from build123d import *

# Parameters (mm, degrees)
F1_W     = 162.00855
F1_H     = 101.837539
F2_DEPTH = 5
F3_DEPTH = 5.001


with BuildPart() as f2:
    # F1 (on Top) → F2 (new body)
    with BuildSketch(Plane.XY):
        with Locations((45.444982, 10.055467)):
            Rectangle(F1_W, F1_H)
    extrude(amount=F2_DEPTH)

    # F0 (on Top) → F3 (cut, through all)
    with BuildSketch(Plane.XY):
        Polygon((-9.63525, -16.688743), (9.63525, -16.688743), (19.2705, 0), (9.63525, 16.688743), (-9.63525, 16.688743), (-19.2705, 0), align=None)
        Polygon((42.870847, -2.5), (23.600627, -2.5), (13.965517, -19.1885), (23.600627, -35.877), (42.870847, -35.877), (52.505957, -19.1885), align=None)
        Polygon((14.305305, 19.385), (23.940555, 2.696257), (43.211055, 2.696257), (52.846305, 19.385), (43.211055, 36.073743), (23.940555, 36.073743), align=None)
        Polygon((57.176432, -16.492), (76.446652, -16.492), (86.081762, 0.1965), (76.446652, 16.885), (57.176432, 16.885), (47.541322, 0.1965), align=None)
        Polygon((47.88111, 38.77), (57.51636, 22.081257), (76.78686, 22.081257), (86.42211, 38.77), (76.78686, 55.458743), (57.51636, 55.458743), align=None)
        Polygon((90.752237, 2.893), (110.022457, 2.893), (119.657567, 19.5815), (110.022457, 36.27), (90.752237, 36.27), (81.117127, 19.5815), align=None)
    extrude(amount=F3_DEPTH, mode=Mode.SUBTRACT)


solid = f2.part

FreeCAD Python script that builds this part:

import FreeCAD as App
import Part
import Sketcher

V = App.Vector
Q = App.Units.Quantity

doc = App.newDocument("Part")
body = doc.addObject("PartDesign::Body", "Body")

# Sketch on XY plane
sketch1 = body.newObject("Sketcher::SketchObject", "Sketch")
sketch1.AttachmentSupport = (doc.getObject("XY_Plane"), [""])
sketch1.MapMode = "FlatFace"
sketch1.addGeometry(Part.LineSegment(V(-36, 61, 0), V(-36, -41, 0)), False)
sketch1.addGeometry(Part.LineSegment(V(-36, -41, 0), V(126, -41, 0)), False)
sketch1.addGeometry(Part.LineSegment(V(126, -41, 0), V(126, 61, 0)), False)
sketch1.addGeometry(Part.LineSegment(V(126, 61, 0), V(-36, 61, 0)), False)
sketch1.addConstraint(Sketcher.Constraint("Coincident", 0, 2, 1, 1))
sketch1.addConstraint(Sketcher.Constraint("Coincident", 1, 2, 2, 1))
sketch1.addConstraint(Sketcher.Constraint("Coincident", 2, 2, 3, 1))
sketch1.addConstraint(Sketcher.Constraint("Coincident", 3, 2, 0, 1))
sketch1.addConstraint(Sketcher.Constraint("Vertical", 0))
sketch1.addConstraint(Sketcher.Constraint("Horizontal", 1))
sketch1.addConstraint(Sketcher.Constraint("Vertical", 2))
sketch1.addConstraint(Sketcher.Constraint("Horizontal", 3))
sketch1.addConstraint(Sketcher.Constraint("DistanceX", 1, 1, 1, 2, 162.00855))
sketch1.addConstraint(Sketcher.Constraint("DistanceY", 0, 2, 0, 1, 101.837539))
sketch1.addConstraint(Sketcher.Constraint("DistanceX", 0, 2, -1, 1, 35.559293))
sketch1.addConstraint(Sketcher.Constraint("DistanceY", 0, 2, -1, 1, 40.863303))
pad1 = body.newObject("PartDesign::Pad", "Pad")
pad1.Profile = sketch1
pad1.Length = 5

# Sketch on XY plane
sketch2 = body.newObject("Sketcher::SketchObject", "Sketch001")
sketch2.AttachmentSupport = (doc.getObject("XY_Plane"), [""])
sketch2.MapMode = "FlatFace"
sketch2.addGeometry(Part.LineSegment(V(-10, -17, 0), V(10, -17, 0)), False)
sketch2.addGeometry(Part.LineSegment(V(10, -17, 0), V(19, 0, 0)), False)
sketch2.addGeometry(Part.LineSegment(V(19, 0, 0), V(10, 17, 0)), False)
sketch2.addGeometry(Part.LineSegment(V(10, 17, 0), V(-10, 17, 0)), False)
sketch2.addGeometry(Part.LineSegment(V(-10, 17, 0), V(-19, 0, 0)), False)
sketch2.addGeometry(Part.LineSegment(V(-19, 0, 0), V(-10, -17, 0)), False)
sketch2.addGeometry(Part.LineSegment(V(43, -2, 0), V(24, -2, 0)), False)
sketch2.addGeometry(Part.LineSegment(V(24, -2, 0), V(14, -19, 0)), False)
sketch2.addGeometry(Part.LineSegment(V(14, -19, 0), V(24, -36, 0)), False)
sketch2.addGeometry(Part.LineSegment(V(24, -36, 0), V(43, -36, 0)), False)
sketch2.addGeometry(Part.LineSegment(V(43, -36, 0), V(53, -19, 0)), False)
sketch2.addGeometry(Part.LineSegment(V(53, -19, 0), V(43, -2, 0)), False)
sketch2.addGeometry(Part.LineSegment(V(14, 19, 0), V(24, 3, 0)), False)
sketch2.addGeometry(Part.LineSegment(V(24, 3, 0), V(43, 3, 0)), False)
sketch2.addGeometry(Part.LineSegment(V(43, 3, 0), V(53, 19, 0)), False)
sketch2.addGeometry(Part.LineSegment(V(53, 19, 0), V(43, 36, 0)), False)
sketch2.addGeometry(Part.LineSegment(V(43, 36, 0), V(24, 36, 0)), False)
sketch2.addGeometry(Part.LineSegment(V(24, 36, 0), V(14, 19, 0)), False)
sketch2.addGeometry(Part.LineSegment(V(57, -16, 0), V(76, -16, 0)), False)
sketch2.addGeometry(Part.LineSegment(V(76, -16, 0), V(86, 0, 0)), False)
sketch2.addGeometry(Part.LineSegment(V(86, 0, 0), V(76, 17, 0)), False)
sketch2.addGeometry(Part.LineSegment(V(76, 17, 0), V(57, 17, 0)), False)
sketch2.addGeometry(Part.LineSegment(V(57, 17, 0), V(48, 0, 0)), False)
sketch2.addGeometry(Part.LineSegment(V(48, 0, 0), V(57, -16, 0)), False)
sketch2.addGeometry(Part.LineSegment(V(48, 39, 0), V(58, 22, 0)), False)
sketch2.addGeometry(Part.LineSegment(V(58, 22, 0), V(77, 22, 0)), False)
sketch2.addGeometry(Part.LineSegment(V(77, 22, 0), V(86, 39, 0)), False)
sketch2.addGeometry(Part.LineSegment(V(86, 39, 0), V(77, 55, 0)), False)
sketch2.addGeometry(Part.LineSegment(V(77, 55, 0), V(58, 55, 0)), False)
sketch2.addGeometry(Part.LineSegment(V(58, 55, 0), V(48, 39, 0)), False)
sketch2.addGeometry(Part.LineSegment(V(91, 3, 0), V(110, 3, 0)), False)
sketch2.addGeometry(Part.LineSegment(V(110, 3, 0), V(120, 20, 0)), False)
sketch2.addGeometry(Part.LineSegment(V(120, 20, 0), V(110, 36, 0)), False)
sketch2.addGeometry(Part.LineSegment(V(110, 36, 0), V(91, 36, 0)), False)
sketch2.addGeometry(Part.LineSegment(V(91, 36, 0), V(81, 20, 0)), False)
sketch2.addGeometry(Part.LineSegment(V(81, 20, 0), V(91, 3, 0)), False)
sketch2.addConstraint(Sketcher.Constraint("Coincident", 0, 2, 1, 1))
sketch2.addConstraint(Sketcher.Constraint("Coincident", 1, 2, 2, 1))
sketch2.addConstraint(Sketcher.Constraint("Coincident", 2, 2, 3, 1))
sketch2.addConstraint(Sketcher.Constraint("Coincident", 3, 2, 4, 1))
sketch2.addConstraint(Sketcher.Constraint("Coincident", 4, 2, 5, 1))
sketch2.addConstraint(Sketcher.Constraint("Coincident", 5, 2, 0, 1))
sketch2.addConstraint(Sketcher.Constraint("Coincident", 6, 2, 7, 1))
sketch2.addConstraint(Sketcher.Constraint("Coincident", 7, 2, 8, 1))
sketch2.addConstraint(Sketcher.Constraint("Coincident", 8, 2, 9, 1))
sketch2.addConstraint(Sketcher.Constraint("Coincident", 9, 2, 10, 1))
sketch2.addConstraint(Sketcher.Constraint("Coincident", 10, 2, 11, 1))
sketch2.addConstraint(Sketcher.Constraint("Coincident", 11, 2, 6, 1))
sketch2.addConstraint(Sketcher.Constraint("Coincident", 12, 2, 13, 1))
sketch2.addConstraint(Sketcher.Constraint("Coincident", 13, 2, 14, 1))
sketch2.addConstraint(Sketcher.Constraint("Coincident", 14, 2, 15, 1))
sketch2.addConstraint(Sketcher.Constraint("Coincident", 15, 2, 16, 1))
sketch2.addConstraint(Sketcher.Constraint("Coincident", 16, 2, 17, 1))
sketch2.addConstraint(Sketcher.Constraint("Coincident", 17, 2, 12, 1))
sketch2.addConstraint(Sketcher.Constraint("Coincident", 18, 2, 19, 1))
sketch2.addConstraint(Sketcher.Constraint("Coincident", 19, 2, 20, 1))
sketch2.addConstraint(Sketcher.Constraint("Coincident", 20, 2, 21, 1))
sketch2.addConstraint(Sketcher.Constraint("Coincident", 21, 2, 22, 1))
sketch2.addConstraint(Sketcher.Constraint("Coincident", 22, 2, 23, 1))
sketch2.addConstraint(Sketcher.Constraint("Coincident", 23, 2, 18, 1))
sketch2.addConstraint(Sketcher.Constraint("Coincident", 24, 2, 25, 1))
sketch2.addConstraint(Sketcher.Constraint("Coincident", 25, 2, 26, 1))
sketch2.addConstraint(Sketcher.Constraint("Coincident", 26, 2, 27, 1))
sketch2.addConstraint(Sketcher.Constraint("Coincident", 27, 2, 28, 1))
sketch2.addConstraint(Sketcher.Constraint("Coincident", 28, 2, 29, 1))
sketch2.addConstraint(Sketcher.Constraint("Coincident", 29, 2, 24, 1))
sketch2.addConstraint(Sketcher.Constraint("Coincident", 30, 2, 31, 1))
sketch2.addConstraint(Sketcher.Constraint("Coincident", 31, 2, 32, 1))
sketch2.addConstraint(Sketcher.Constraint("Coincident", 32, 2, 33, 1))
sketch2.addConstraint(Sketcher.Constraint("Coincident", 33, 2, 34, 1))
sketch2.addConstraint(Sketcher.Constraint("Coincident", 34, 2, 35, 1))
sketch2.addConstraint(Sketcher.Constraint("Coincident", 35, 2, 30, 1))
sketch2.addConstraint(Sketcher.Constraint("Horizontal", 0))
sketch2.addConstraint(Sketcher.Constraint("Horizontal", 3))
sketch2.addConstraint(Sketcher.Constraint("Horizontal", 6))
sketch2.addConstraint(Sketcher.Constraint("Horizontal", 9))
sketch2.addConstraint(Sketcher.Constraint("Horizontal", 13))
sketch2.addConstraint(Sketcher.Constraint("Horizontal", 16))
sketch2.addConstraint(Sketcher.Constraint("Horizontal", 18))
sketch2.addConstraint(Sketcher.Constraint("Horizontal", 21))
sketch2.addConstraint(Sketcher.Constraint("Horizontal", 25))
sketch2.addConstraint(Sketcher.Constraint("Horizontal", 28))
sketch2.addConstraint(Sketcher.Constraint("Horizontal", 30))
sketch2.addConstraint(Sketcher.Constraint("Horizontal", 33))
sketch2.addConstraint(Sketcher.Constraint("Symmetric", 0, 2, 3, 2, -1, 1))
sketch2.addConstraint(Sketcher.Constraint("Symmetric", 1, 2, 4, 2, -1, 1))
sketch2.addConstraint(Sketcher.Constraint("PointOnObject", 1, 2, -1))
sketch2.addConstraint(Sketcher.Constraint("Parallel", 2, 5))
sketch2.addConstraint(Sketcher.Constraint("Parallel", 4, 7))
sketch2.addConstraint(Sketcher.Constraint("Parallel", 5, 8))
sketch2.addConstraint(Sketcher.Constraint("Parallel", 7, 10))
sketch2.addConstraint(Sketcher.Constraint("Parallel", 8, 11))
sketch2.addConstraint(Sketcher.Constraint("Parallel", 11, 12))
sketch2.addConstraint(Sketcher.Constraint("Parallel", 10, 14))
sketch2.addConstraint(Sketcher.Constraint("Parallel", 12, 15))
sketch2.addConstraint(Sketcher.Constraint("Parallel", 14, 17))
sketch2.addConstraint(Sketcher.Constraint("Parallel", 17, 19))
sketch2.addConstraint(Sketcher.Constraint("Parallel", 15, 20))
sketch2.addConstraint(Sketcher.Constraint("Parallel", 19, 22))
sketch2.addConstraint(Sketcher.Constraint("Parallel", 20, 23))
sketch2.addConstraint(Sketcher.Constraint("Parallel", 23, 24))
sketch2.addConstraint(Sketcher.Constraint("Parallel", 22, 26))
sketch2.addConstraint(Sketcher.Constraint("Parallel", 24, 27))
sketch2.addConstraint(Sketcher.Constraint("Parallel", 26, 29))
sketch2.addConstraint(Sketcher.Constraint("Parallel", 29, 31))
sketch2.addConstraint(Sketcher.Constraint("Parallel", 27, 32))
sketch2.addConstraint(Sketcher.Constraint("Parallel", 31, 34))
sketch2.addConstraint(Sketcher.Constraint("Parallel", 32, 35))
sketch2.addConstraint(Sketcher.Constraint("Horizontal", 7, 2, 10, 2))
sketch2.addConstraint(Sketcher.Constraint("Horizontal", 14, 2, 17, 2))
sketch2.addConstraint(Sketcher.Constraint("Horizontal", 19, 2, 22, 2))
sketch2.addConstraint(Sketcher.Constraint("Horizontal", 26, 2, 29, 2))
sketch2.addConstraint(Sketcher.Constraint("Horizontal", 31, 2, 34, 2))
sketch2.addConstraint(Sketcher.Constraint("Vertical", 0, 2, 2, 2))
sketch2.addConstraint(Sketcher.Constraint("Vertical", 6, 2, 8, 2))
sketch2.addConstraint(Sketcher.Constraint("Vertical", 13, 2, 15, 2))
sketch2.addConstraint(Sketcher.Constraint("Vertical", 18, 2, 20, 2))
sketch2.addConstraint(Sketcher.Constraint("Vertical", 25, 2, 27, 2))
sketch2.addConstraint(Sketcher.Constraint("Vertical", 30, 2, 32, 2))
sketch2.addConstraint(Sketcher.Constraint("Equal", 3, 13))
sketch2.addConstraint(Sketcher.Constraint("Equal", 9, 18))
sketch2.addConstraint(Sketcher.Constraint("Equal", 16, 25))
sketch2.addConstraint(Sketcher.Constraint("Equal", 21, 30))
sketch2.addConstraint(Sketcher.Constraint("Equal", 5, 12))
sketch2.addConstraint(Sketcher.Constraint("Equal", 11, 19))
sketch2.addConstraint(Sketcher.Constraint("Equal", 17, 24))
sketch2.addConstraint(Sketcher.Constraint("Equal", 23, 31))
sketch2.addConstraint(Sketcher.Constraint("Angle", 1, Q("60.000001 deg")))
sketch2.addConstraint(Sketcher.Constraint("DistanceY", 6, 2, -1, 1, 2.5))
sketch2.addConstraint(Sketcher.Constraint("DistanceY", 20, 2, 14, 2, 2.5))
sketch2.addConstraint(Sketcher.Constraint("DistanceY", 32, 2, 26, 2, 2.5))
sketch2.addConstraint(Sketcher.Constraint("DistanceY", -1, 1, 26, 2, 38.77))
sketch2.addConstraint(Sketcher.Constraint("DistanceX", 0, 1, 0, 2, 19.2705))
sketch2.addConstraint(Sketcher.Constraint("DistanceY", 8, 2, -1, 1, 35.877))
sketch2.addConstraint(Sketcher.Constraint("DistanceY", -1, 1, 14, 2, 19.385))
sketch2.addConstraint(Sketcher.Constraint("DistanceX", 4, 2, 1, 2, 38.541))
sketch2.addConstraint(Sketcher.Constraint("DistanceX", 6, 2, 6, 1, 19.27022))
sketch2.addConstraint(Sketcher.Constraint("DistanceX", 25, 2, 19, 2, 9.294902))
sketch2.addConstraint(Sketcher.Constraint("DistanceX", -1, 1, 18, 2, 76.446652))
sketch2.addConstraint(Sketcher.Constraint("DistanceX", 6, 2, 12, 2, 0.339928))
sketch2.addConstraint(Sketcher.Constraint("DistanceX", -1, 1, 6, 2, 23.600627))
sketch2.addConstraint(Sketcher.Constraint("DistanceX", -1, 1, 30, 2, 110.022457))
pocket1 = body.newObject("PartDesign::Pocket", "Pocket")
pocket1.Profile = sketch2
pocket1.Type = "ThroughAll"
pocket1.Reversed = True

doc.recompute()
